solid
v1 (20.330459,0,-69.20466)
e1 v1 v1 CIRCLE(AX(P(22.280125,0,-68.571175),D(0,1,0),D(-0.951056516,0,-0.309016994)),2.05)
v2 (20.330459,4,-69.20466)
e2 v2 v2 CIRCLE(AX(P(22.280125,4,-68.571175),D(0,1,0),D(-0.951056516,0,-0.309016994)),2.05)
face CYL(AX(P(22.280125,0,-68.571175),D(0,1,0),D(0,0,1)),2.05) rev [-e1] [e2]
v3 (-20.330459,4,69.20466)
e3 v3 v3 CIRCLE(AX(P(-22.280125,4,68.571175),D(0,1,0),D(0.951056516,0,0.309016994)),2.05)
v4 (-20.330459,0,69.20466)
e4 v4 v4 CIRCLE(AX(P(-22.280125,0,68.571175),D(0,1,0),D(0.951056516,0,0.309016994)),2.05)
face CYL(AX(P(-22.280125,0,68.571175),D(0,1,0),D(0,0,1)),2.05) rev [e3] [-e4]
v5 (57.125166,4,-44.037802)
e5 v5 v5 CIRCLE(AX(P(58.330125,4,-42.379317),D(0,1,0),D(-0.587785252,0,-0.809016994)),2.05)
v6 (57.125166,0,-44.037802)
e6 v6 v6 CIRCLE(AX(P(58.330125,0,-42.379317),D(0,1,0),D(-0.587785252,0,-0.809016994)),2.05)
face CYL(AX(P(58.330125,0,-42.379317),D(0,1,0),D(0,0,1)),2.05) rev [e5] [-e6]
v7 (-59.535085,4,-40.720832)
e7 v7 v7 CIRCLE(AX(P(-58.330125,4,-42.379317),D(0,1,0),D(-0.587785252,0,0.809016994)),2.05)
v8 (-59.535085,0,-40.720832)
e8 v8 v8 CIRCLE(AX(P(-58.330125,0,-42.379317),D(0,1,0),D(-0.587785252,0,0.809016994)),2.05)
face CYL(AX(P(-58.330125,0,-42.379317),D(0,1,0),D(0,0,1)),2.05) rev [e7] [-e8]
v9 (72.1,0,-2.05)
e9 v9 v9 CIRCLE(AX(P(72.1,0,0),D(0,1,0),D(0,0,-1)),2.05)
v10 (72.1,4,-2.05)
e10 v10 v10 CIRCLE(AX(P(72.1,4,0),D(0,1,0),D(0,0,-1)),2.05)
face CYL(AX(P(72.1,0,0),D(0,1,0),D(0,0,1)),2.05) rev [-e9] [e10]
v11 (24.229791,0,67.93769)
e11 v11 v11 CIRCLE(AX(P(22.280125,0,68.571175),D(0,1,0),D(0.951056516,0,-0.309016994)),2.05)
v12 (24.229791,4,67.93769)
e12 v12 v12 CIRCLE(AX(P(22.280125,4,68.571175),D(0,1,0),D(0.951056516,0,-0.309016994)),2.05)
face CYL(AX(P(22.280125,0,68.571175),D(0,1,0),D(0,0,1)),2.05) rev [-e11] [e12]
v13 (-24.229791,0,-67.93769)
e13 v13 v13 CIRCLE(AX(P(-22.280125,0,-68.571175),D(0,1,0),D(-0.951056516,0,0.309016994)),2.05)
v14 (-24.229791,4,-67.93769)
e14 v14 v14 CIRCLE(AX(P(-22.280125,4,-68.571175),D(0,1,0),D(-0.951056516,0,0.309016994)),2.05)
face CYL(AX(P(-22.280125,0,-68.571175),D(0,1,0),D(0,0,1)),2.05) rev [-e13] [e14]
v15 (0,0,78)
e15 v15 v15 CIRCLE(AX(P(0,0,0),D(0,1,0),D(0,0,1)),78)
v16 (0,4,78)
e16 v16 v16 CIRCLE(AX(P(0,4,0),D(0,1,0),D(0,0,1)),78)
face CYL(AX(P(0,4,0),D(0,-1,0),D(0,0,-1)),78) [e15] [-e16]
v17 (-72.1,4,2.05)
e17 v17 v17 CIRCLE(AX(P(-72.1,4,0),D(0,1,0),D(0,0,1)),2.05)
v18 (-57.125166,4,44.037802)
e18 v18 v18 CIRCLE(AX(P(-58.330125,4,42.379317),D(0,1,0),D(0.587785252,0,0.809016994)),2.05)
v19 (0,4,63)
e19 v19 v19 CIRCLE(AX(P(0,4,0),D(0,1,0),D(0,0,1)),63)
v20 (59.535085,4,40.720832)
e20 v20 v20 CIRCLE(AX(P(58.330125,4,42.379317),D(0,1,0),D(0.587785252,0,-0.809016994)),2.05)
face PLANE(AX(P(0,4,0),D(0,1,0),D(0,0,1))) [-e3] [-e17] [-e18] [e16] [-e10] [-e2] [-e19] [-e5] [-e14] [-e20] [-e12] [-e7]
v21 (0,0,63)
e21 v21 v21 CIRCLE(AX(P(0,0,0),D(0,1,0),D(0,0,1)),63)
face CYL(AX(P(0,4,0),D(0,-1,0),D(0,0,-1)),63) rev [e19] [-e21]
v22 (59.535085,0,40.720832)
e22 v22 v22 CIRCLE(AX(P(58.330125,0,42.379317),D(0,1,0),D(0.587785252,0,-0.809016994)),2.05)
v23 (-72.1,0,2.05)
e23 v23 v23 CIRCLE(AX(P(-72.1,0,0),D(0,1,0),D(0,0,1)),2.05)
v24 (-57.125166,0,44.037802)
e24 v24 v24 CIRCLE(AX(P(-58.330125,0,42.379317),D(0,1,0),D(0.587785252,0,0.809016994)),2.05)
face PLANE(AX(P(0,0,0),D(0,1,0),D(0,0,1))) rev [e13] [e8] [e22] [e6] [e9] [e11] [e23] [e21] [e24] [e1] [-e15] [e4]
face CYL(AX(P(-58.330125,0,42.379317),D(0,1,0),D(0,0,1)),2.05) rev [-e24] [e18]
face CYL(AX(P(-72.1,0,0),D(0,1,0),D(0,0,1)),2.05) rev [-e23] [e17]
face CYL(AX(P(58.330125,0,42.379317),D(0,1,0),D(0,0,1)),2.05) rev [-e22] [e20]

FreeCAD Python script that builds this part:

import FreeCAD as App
import Part
import Sketcher
Q = App.Units.Quantity

doc = App.newDocument("Part")
body = doc.addObject("PartDesign::Body", "Body")

# Sketch on XZ plane
sketch1 = body.newObject("Sketcher::SketchObject", "Sketch")
sketch1.AttachmentSupport = (doc.getObject("XZ_Plane"), [""])
sketch1.MapMode = "FlatFace"
sketch1.addGeometry([
    Part.Circle(App.Vector(0, 0, 0), App.Vector(0, 0, 1), 78),
    Part.Circle(App.Vector(0, 0, 0), App.Vector(0, 0, 1), 63),
], False)
sketch1.addConstraint([
    Sketcher.Constraint("Coincident", 0, 3, -1, 1),
    Sketcher.Constraint("Coincident", 1, 3, -1, 1),
    Sketcher.Constraint("Diameter", 0, Q("156 mm")),
    Sketcher.Constraint("Diameter", 1, Q("126 mm")),
])
pad1 = body.newObject("PartDesign::Pad", "Pad")
pad1.Profile = sketch1
pad1.Length = 4
pad1.Reversed = True

# Sketch on XZ plane
sketch2 = body.newObject("Sketcher::SketchObject", "Sketch001")
sketch2.AttachmentSupport = (doc.getObject("XZ_Plane"), [""])
sketch2.MapMode = "FlatFace"
sketch2.AttachmentOffset = App.Placement(App.Vector(0, 0, -4), App.Rotation())
sketch2.addGeometry(Part.Circle(App.Vector(-72.1, 0, 0), App.Vector(0, 0, 1), 2), False)
sketch2.addConstraint([
    Sketcher.Constraint("PointOnObject", 0, 3, -1),
    Sketcher.Constraint("Diameter", 0, Q("4.1 mm")),
    Sketcher.Constraint("DistanceX", 0, 3, -1, 1, Q("72.1 mm")),
])
pocket1 = body.newObject("PartDesign::Pocket", "Pocket")
pocket1.Profile = sketch2
pocket1.Length = 4
pocket1.Reversed = True
doc.recompute()

polarpattern = body.newObject("PartDesign::PolarPattern", "PolarPattern")
polarpattern.Originals = [pocket1]
polarpattern.Axis = (doc.getObject("Y_Axis"), [""])
polarpattern.Angle = 360
polarpattern.Occurrences = 10
body.Tip = polarpattern

doc.recompute()
